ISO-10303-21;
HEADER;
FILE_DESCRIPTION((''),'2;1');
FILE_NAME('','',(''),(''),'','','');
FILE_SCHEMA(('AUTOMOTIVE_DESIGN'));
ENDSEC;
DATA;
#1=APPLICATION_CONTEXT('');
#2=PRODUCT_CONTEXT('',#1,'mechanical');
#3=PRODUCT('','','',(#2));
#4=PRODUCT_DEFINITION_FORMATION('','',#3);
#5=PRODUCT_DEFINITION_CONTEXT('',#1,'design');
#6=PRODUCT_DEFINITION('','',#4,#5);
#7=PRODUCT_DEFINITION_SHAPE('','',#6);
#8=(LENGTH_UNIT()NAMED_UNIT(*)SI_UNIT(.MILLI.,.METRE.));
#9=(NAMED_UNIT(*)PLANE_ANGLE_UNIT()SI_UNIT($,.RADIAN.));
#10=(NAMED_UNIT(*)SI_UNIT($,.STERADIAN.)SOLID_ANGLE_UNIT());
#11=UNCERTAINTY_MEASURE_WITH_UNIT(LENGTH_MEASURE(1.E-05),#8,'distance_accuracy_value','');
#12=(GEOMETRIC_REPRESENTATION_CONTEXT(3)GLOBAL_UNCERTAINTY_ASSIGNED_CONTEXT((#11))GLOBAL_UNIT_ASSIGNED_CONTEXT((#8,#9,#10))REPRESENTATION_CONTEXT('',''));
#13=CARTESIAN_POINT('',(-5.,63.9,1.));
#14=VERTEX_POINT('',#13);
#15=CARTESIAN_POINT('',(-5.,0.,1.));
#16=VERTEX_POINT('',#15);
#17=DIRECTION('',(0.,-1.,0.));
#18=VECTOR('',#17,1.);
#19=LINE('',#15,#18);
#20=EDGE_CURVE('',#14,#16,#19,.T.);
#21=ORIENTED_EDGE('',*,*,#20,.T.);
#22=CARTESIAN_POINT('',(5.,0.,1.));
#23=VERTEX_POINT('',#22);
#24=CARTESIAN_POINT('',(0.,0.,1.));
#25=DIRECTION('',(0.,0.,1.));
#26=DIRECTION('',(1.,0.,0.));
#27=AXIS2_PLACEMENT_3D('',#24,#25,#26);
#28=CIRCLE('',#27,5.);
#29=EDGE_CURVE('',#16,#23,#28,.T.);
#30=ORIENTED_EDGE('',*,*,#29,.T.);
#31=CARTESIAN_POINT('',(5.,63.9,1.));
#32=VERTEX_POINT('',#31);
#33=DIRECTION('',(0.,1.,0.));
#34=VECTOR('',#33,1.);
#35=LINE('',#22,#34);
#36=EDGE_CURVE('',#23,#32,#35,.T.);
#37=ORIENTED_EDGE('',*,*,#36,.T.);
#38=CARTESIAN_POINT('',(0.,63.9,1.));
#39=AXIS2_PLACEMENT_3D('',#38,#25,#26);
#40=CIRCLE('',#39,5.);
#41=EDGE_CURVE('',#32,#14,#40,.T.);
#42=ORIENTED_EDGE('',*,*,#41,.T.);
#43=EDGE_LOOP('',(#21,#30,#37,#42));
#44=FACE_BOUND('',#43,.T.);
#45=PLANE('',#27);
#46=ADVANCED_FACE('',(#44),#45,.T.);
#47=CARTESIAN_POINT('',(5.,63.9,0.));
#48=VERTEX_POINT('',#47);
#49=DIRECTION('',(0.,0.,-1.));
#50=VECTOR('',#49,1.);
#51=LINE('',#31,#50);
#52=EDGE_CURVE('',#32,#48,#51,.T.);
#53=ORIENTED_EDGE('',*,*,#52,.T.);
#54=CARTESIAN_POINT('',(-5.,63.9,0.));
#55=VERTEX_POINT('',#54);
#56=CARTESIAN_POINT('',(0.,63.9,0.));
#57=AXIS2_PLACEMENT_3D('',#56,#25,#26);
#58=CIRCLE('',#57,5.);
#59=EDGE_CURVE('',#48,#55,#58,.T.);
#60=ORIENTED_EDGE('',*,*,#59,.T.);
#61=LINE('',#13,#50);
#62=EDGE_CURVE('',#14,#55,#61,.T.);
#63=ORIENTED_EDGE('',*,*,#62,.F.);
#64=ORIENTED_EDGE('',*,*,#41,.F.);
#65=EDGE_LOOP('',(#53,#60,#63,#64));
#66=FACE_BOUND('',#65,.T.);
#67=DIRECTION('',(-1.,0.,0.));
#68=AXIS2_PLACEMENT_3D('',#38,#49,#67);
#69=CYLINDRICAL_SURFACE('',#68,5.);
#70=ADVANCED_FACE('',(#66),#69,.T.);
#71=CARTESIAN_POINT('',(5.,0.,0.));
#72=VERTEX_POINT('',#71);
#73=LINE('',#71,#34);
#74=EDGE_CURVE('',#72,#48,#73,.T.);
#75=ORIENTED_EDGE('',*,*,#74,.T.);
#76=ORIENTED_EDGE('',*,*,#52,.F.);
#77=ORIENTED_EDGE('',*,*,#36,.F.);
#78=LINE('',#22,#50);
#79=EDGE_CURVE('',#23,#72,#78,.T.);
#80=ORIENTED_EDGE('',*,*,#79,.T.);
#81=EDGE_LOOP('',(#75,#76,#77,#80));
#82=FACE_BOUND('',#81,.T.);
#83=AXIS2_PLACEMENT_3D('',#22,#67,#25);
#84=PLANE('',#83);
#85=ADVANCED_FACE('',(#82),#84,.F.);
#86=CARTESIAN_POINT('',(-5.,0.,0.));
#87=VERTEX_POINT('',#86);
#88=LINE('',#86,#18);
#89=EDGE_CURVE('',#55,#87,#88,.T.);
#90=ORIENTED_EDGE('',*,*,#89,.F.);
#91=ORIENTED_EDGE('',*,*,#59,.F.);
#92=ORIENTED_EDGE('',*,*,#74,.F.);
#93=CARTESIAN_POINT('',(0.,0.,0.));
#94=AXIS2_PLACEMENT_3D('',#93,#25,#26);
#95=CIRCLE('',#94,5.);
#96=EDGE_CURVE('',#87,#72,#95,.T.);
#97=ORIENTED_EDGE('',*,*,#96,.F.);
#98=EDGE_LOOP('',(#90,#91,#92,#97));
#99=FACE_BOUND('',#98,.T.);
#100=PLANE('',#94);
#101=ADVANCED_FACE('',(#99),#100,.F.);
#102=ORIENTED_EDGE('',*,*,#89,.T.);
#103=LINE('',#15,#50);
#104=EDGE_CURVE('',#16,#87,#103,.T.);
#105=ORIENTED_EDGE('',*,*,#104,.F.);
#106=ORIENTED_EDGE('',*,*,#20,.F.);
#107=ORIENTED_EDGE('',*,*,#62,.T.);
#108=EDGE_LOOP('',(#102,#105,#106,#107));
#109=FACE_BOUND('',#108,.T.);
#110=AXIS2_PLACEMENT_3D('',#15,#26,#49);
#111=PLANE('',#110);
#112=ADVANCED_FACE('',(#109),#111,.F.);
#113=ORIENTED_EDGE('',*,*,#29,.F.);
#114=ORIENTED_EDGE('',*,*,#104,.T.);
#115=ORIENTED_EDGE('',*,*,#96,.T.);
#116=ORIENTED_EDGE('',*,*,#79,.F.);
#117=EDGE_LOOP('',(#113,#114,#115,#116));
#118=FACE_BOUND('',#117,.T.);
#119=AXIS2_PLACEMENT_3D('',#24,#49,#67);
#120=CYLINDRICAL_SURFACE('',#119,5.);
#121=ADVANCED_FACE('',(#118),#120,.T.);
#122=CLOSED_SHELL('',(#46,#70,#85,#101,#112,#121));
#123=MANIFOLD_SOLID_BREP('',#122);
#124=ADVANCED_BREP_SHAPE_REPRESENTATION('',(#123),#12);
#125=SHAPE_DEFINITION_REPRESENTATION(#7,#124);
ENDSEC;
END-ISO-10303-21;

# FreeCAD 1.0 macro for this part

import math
import FreeCAD as App
import Part
import Sketcher
from FreeCAD import Vector

doc = App.newDocument("Part")
body = doc.addObject("PartDesign::Body", "Body")

# Sketch on XY plane
sketch1 = body.newObject("Sketcher::SketchObject", "Sketch")
sketch1.AttachmentSupport = (doc.getObject("XY_Plane"), [""])
sketch1.MapMode = "FlatFace"
sketch1.addGeometry([
    Part.LineSegment(Vector(-5, 64, 0), Vector(-5, 0, 0)),
    Part.ArcOfCircle(Part.Circle(Vector(0, 0, 0), Vector(0, 0, 1), 5), math.radians(180), math.radians(360)),
    Part.LineSegment(Vector(5, 0, 0), Vector(5, 64, 0)),
    Part.ArcOfCircle(Part.Circle(Vector(0, 64, 0), Vector(0, 0, 1), 5), math.radians(0), math.radians(180)),
], False)
sketch1.addConstraint([
    Sketcher.Constraint("Tangent", 0, 2, 1, 1),
    Sketcher.Constraint("Tangent", 1, 2, 2, 1),
    Sketcher.Constraint("Tangent", 2, 2, 3, 1),
    Sketcher.Constraint("Tangent", 3, 2, 0, 1),
    Sketcher.Constraint("Vertical", 0),
    Sketcher.Constraint("Vertical", 2),
    Sketcher.Constraint("Coincident", 1, 3, -1, 1),
    Sketcher.Constraint("Radius", 1, 5.0),
    Sketcher.Constraint("DistanceY", 0, 2, 0, 1, 63.9),
])
pad1 = body.newObject("PartDesign::Pad", "Pad")
pad1.Profile = sketch1
pad1.Length = 1

doc.recompute()
